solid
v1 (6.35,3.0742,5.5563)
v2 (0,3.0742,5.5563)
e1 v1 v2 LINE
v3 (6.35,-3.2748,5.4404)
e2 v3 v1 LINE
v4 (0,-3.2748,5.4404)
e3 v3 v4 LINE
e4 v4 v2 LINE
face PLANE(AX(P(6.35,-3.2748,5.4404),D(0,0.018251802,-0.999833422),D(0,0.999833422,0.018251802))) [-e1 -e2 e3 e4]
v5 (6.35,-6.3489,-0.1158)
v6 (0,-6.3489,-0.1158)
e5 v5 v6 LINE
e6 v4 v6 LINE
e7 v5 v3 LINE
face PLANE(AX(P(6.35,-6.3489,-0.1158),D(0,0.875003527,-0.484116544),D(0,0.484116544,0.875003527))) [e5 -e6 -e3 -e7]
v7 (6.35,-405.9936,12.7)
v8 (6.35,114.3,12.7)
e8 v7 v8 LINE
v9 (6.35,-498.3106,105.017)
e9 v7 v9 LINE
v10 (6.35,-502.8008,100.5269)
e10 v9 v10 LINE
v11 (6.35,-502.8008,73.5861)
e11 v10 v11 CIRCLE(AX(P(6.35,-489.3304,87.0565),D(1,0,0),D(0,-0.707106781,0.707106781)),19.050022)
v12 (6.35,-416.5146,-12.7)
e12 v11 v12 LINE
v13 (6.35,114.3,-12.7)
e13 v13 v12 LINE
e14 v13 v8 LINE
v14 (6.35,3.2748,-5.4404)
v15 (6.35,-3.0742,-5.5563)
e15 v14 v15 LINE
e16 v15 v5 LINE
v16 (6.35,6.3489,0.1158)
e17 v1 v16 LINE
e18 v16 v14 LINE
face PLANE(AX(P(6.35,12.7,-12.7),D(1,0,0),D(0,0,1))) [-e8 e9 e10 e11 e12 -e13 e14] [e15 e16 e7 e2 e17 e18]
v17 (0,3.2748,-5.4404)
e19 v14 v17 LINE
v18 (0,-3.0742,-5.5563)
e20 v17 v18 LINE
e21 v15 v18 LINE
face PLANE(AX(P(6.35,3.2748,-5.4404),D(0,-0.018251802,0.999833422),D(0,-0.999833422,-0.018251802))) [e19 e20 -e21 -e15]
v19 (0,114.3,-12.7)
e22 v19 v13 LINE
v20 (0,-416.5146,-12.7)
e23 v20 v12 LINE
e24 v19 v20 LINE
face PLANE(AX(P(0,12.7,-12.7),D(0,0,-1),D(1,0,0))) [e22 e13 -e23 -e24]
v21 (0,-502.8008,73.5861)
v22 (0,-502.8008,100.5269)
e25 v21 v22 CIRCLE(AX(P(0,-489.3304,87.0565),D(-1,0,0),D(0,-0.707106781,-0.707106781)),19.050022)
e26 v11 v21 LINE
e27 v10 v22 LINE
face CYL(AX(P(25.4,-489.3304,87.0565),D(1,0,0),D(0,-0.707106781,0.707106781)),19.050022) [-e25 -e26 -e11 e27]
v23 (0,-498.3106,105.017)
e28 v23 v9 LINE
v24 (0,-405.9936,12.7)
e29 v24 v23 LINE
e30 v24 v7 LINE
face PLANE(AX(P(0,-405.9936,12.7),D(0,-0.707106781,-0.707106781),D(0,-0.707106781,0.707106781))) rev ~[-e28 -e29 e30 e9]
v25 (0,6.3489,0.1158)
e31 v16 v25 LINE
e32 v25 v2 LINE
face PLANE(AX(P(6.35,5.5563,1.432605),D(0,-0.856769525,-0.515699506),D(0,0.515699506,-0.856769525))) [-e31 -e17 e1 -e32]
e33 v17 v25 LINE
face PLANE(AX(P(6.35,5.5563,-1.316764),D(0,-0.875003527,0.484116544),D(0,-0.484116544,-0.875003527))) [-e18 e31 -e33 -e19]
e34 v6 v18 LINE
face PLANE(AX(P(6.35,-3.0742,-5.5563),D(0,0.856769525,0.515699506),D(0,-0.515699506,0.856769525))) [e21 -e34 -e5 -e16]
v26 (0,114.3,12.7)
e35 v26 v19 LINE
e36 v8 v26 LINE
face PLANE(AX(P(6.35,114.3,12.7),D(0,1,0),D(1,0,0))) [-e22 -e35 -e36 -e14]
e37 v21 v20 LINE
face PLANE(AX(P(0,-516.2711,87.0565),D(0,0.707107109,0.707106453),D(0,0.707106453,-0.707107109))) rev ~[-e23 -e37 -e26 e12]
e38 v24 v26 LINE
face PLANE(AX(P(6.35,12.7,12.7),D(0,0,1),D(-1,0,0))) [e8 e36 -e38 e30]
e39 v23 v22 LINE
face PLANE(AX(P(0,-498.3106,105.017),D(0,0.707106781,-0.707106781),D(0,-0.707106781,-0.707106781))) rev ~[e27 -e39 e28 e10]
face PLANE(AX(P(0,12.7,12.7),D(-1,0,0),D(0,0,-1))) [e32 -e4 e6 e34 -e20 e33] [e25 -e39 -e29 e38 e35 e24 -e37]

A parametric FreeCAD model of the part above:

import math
import FreeCAD as App
import Part
import Sketcher

V = App.Vector
Q = App.Units.Quantity


def add_polygon(sketch, points):
    """Adds a closed chain of lines whose ends are joined by coincident constraints."""
    first, n = sketch.GeometryCount, len(points)
    for a, b in zip(points, points[1:] + points[:1]):
        sketch.addGeometry(Part.LineSegment(App.Vector(*a, 0), App.Vector(*b, 0)), False)
    for i in range(n):
        sketch.addConstraint(Sketcher.Constraint("Coincident", first + i, 2, first + (i + 1) % n, 1))

doc = App.newDocument("Part")
params = doc.addObject("Spreadsheet::Sheet", "Params")
for row, (alias, value) in enumerate([
    ("sketch1_diameter", "0.25 in"),
    ("sketch1_length", "1 in"),
    ("sketch1_height", "0.5 in"),
    ("sketch1_length2", "5.14 in"),
    ("sketch1_width", "16.484 in"),
    ("pad1_length", "1 in"),
    ("sketch2_radius", "0.75 in"),
    ("pocket1_length", "1 in"),
    ("sketch3_width", "1 in"),
    ("pad2_length", "5 in"),
    ("sketch4_diameter", "0.25 in"),
    ("sketch4_height", "1 in"),
    ("sketch4_radius", "0.75 in"),
    ("sketch4_length", "0.25 in"),
    ("sketch4_length2", "5.14 in"),
    ("pocket2_length", "0.75 in"),
    ("sketch5_width", "5 in"),
    ("sketch5_height", "1 in"),
    ("pocket3_length", "5 in"),
    ("sketch6_height", "1 in"),
    ("sketch6_width", "0.25 in"),
    ("pad3_length", "4 in"),
    ("sketch7_diameter", "0.5 in"),
    ("sketch7_diameter2", "0.25 in"),
    ("pocket4_length", "1 in"),
    ("sketch8_radius", "0.25 in"),
    ("pad4_length", "0.25 in"),
], start=1):
    params.set(f"A{row}", alias)
    params.set(f"B{row}", "=" + value)
    params.setAlias(f"B{row}", alias)

body = doc.addObject("PartDesign::Body", "Body")

# Sketch on YZ plane
sketch1 = body.newObject("Sketcher::SketchObject", "Sketch")
sketch1.AttachmentSupport = (doc.getObject("YZ_Plane"), [""])
sketch1.MapMode = "FlatFace"
add_polygon(sketch1, [(12.7, -12.7), (12.7, 0), (12.7, 12.7), (-406, 12.7), (-498.3, 105), (-516.3, 87.1), (-416.5, -12.7)])  # lines 0-6
sketch1.addGeometry(Part.Circle(V(0, 0, 0), V(0, 0, 1), 3.2), False)  # 7
sketch1.addConstraint(Sketcher.Constraint("Vertical", 0))
sketch1.addConstraint(Sketcher.Constraint("Vertical", 1))
sketch1.addConstraint(Sketcher.Constraint("Horizontal", 2))
sketch1.addConstraint(Sketcher.Constraint("Horizontal", 6))
sketch1.addConstraint(Sketcher.Constraint("Coincident", 7, 3, -1, 1))
sketch1.addConstraint(Sketcher.Constraint("PointOnObject", 0, 2, -1))
sketch1.addConstraint(Sketcher.Constraint("Perpendicular", 3, 4))
sketch1.addConstraint(Sketcher.Constraint("Perpendicular", 4, 5))
sketch1.addConstraint(Sketcher.Constraint("Equal", 0, 1))
sketch1.addConstraint(Sketcher.Constraint("Diameter", 7, Q("0.25 in")))
sketch1.addConstraint(Sketcher.Constraint("Distance", 4, Q("1 in")))
sketch1.addConstraint(Sketcher.Constraint("DistanceY", 0, 1, 0, 2, Q("0.5 in")))
sketch1.addConstraint(Sketcher.Constraint("Angle", 3, Q("135 deg")))
sketch1.addConstraint(Sketcher.Constraint("DistanceX", -1, 1, 0, 2, Q("0.5 in")))
sketch1.addConstraint(Sketcher.Constraint("Distance", 3, Q("5.14 in")))
sketch1.addConstraint(Sketcher.Constraint("DistanceX", 2, 2, 2, 1, Q("16.484 in")))
sketch1.setExpression("Constraints[16]", "Params.sketch1_diameter")
sketch1.setExpression("Constraints[17]", "Params.sketch1_length")
sketch1.setExpression("Constraints[18]", "Params.sketch1_height")
sketch1.setExpression("Constraints[21]", "Params.sketch1_length2")
sketch1.setExpression("Constraints[22]", "Params.sketch1_width")
pad1 = body.newObject("PartDesign::Pad", "Pad")
pad1.Profile = sketch1
pad1.setExpression("Length", "Params.pad1_length")

# Sketch on YZ plane
sketch2 = body.newObject("Sketcher::SketchObject", "Sketch001")
sketch2.AttachmentSupport = (doc.getObject("YZ_Plane"), [""])
sketch2.MapMode = "FlatFace"
sketch2.AttachmentOffset = App.Placement(V(0, 0, 1 * 25.4), App.Rotation())
sketch2.addGeometry(Part.LineSegment(V(-503, 101, 0), V(-516, 87, 0)), False)
sketch2.addGeometry(Part.LineSegment(V(-516, 87, 0), V(-503, 74, 0)), False)
sketch2.addGeometry(Part.ArcOfCircle(Part.Circle(V(-489, 87, 0), V(0, 0, 1), 19), math.radians(135), math.radians(225)), False)
sketch2.addConstraint(Sketcher.Constraint("Coincident", 0, 2, 1, 1))
sketch2.addConstraint(Sketcher.Constraint("Tangent", 1, 2, 2, 2))
sketch2.addConstraint(Sketcher.Constraint("Tangent", 2, 1, 0, 1))
sketch2.addConstraint(Sketcher.Constraint("Perpendicular", 0, 1))
sketch2.addConstraint(Sketcher.Constraint("Horizontal", 2, 3, 0, 2))
sketch2.addConstraint(Sketcher.Constraint("Radius", 2, Q("0.75 in")))
sketch2.addConstraint(Sketcher.Constraint("DistanceX", 1, 2, -1, 1, Q("19.7953 in")))
sketch2.addConstraint(Sketcher.Constraint("DistanceY", -1, 1, 1, 2, Q("2.8971 in")))
sketch2.setExpression("Constraints[5]", "Params.sketch2_radius")
pocket1 = body.newObject("PartDesign::Pocket", "Pocket")
pocket1.Profile = sketch2
pocket1.setExpression("Length", "Params.pocket1_length")

# Sketch on XZ plane
sketch3 = body.newObject("Sketcher::SketchObject", "Sketch002")
sketch3.AttachmentSupport = (doc.getObject("XZ_Plane"), [""])
sketch3.MapMode = "FlatFace"
sketch3.AttachmentOffset = App.Placement(V(0, 0, -0.5 * 25.4), App.Rotation())
add_polygon(sketch3, [(25, -13), (0, -13), (0, 13), (25, 13)])  # lines 0-3
sketch3.addConstraint(Sketcher.Constraint("Horizontal", 0))
sketch3.addConstraint(Sketcher.Constraint("Vertical", 1))
sketch3.addConstraint(Sketcher.Constraint("Horizontal", 2))
sketch3.addConstraint(Sketcher.Constraint("Vertical", 3))
sketch3.addConstraint(Sketcher.Constraint("Symmetric", 0, 2, 1, 2, -1, 1))
sketch3.addConstraint(Sketcher.Constraint("Equal", 2, 1))
sketch3.addConstraint(Sketcher.Constraint("DistanceX", 0, 2, 0, 1, Q("1 in")))
sketch3.setExpression("Constraints[10]", "Params.sketch3_width")
pad2 = body.newObject("PartDesign::Pad", "Pad001")
pad2.Profile = sketch3
pad2.setExpression("Length", "Params.pad2_length")
pad2.Reversed = True

# Sketch on YZ plane
sketch4 = body.newObject("Sketcher::SketchObject", "Sketch003")
sketch4.AttachmentSupport = (doc.getObject("YZ_Plane"), [""])
sketch4.MapMode = "FlatFace"
sketch4.AttachmentOffset = App.Placement(V(0, 0, 1 * 25.4), App.Rotation())
sketch4.addGeometry(Part.LineSegment(V(-498.3, 105, 0), V(-502.8, 100.5, 0)), False)
sketch4.addGeometry(Part.ArcOfCircle(Part.Circle(V(-489.3, 87.1, 0), V(0, 0, 1), 19.1), math.radians(135), math.radians(225)), False)
sketch4.addGeometry(Part.LineSegment(V(-502.8, 73.6, 0), V(-416.5, -12.7, 0)), False)
sketch4.addGeometry(Part.LineSegment(V(-416.5, -12.7, 0), V(139.7, -12.7, 0)), False)
sketch4.addGeometry(Part.LineSegment(V(139.7, -12.7, 0), V(139.7, 12.7, 0)), False)
sketch4.addGeometry(Part.LineSegment(V(139.7, 12.7, 0), V(-406, 12.7, 0)), False)
sketch4.addGeometry(Part.LineSegment(V(-406, 12.7, 0), V(-498.3, 105, 0)), False)
sketch4.addGeometry(Part.Circle(V(0, 0, 0), V(0, 0, 1), 3.2), False)
sketch4.addConstraint(Sketcher.Constraint("Tangent", 0, 2, 1, 1))
sketch4.addConstraint(Sketcher.Constraint("Tangent", 1, 2, 2, 1))
sketch4.addConstraint(Sketcher.Constraint("Coincident", 2, 2, 3, 1))
sketch4.addConstraint(Sketcher.Constraint("Coincident", 3, 2, 4, 1))
sketch4.addConstraint(Sketcher.Constraint("Coincident", 4, 2, 5, 1))
sketch4.addConstraint(Sketcher.Constraint("Coincident", 5, 2, 6, 1))
sketch4.addConstraint(Sketcher.Constraint("Coincident", 6, 2, 0, 1))
sketch4.addConstraint(Sketcher.Constraint("Horizontal", 3))
sketch4.addConstraint(Sketcher.Constraint("Vertical", 4))
sketch4.addConstraint(Sketcher.Constraint("Horizontal", 5))
sketch4.addConstraint(Sketcher.Constraint("Coincident", 7, 3, -1, 1))
sketch4.addConstraint(Sketcher.Constraint("Perpendicular", 0, 2))
sketch4.addConstraint(Sketcher.Constraint("Parallel", 2, 6))
sketch4.addConstraint(Sketcher.Constraint("Vertical", 0, 2, 1, 2))
sketch4.addConstraint(Sketcher.Constraint("Diameter", 7, Q("0.25 in")))
sketch4.addConstraint(Sketcher.Constraint("DistanceY", 4, 1, 4, 2, Q("1 in")))
sketch4.addConstraint(Sketcher.Constraint("Radius", 1, Q("0.75 in")))
sketch4.addConstraint(Sketcher.Constraint("DistanceY", 2, 2, -1, 1, Q("0.5 in")))
sketch4.addConstraint(Sketcher.Constraint("DistanceX", -1, 1, 3, 2, Q("5.5 in")))
sketch4.addConstraint(Sketcher.Constraint("Distance", 0, Q("0.25 in")))
sketch4.addConstraint(Sketcher.Constraint("Distance", 6, Q("5.14 in")))
sketch4.addConstraint(Sketcher.Constraint("DistanceX", 5, 2, 5, 1, Q("21.484 in")))
sketch4.setExpression("Constraints[14]", "Params.sketch4_diameter")
sketch4.setExpression("Constraints[15]", "Params.sketch4_height")
sketch4.setExpression("Constraints[16]", "Params.sketch4_radius")
sketch4.setExpression("Constraints[19]", "Params.sketch4_length")
sketch4.setExpression("Constraints[20]", "Params.sketch4_length2")
pocket2 = body.newObject("PartDesign::Pocket", "Pocket001")
pocket2.Profile = sketch4
pocket2.setExpression("Length", "Params.pocket2_length")

# Sketch on YZ plane
sketch5 = body.newObject("Sketcher::SketchObject", "Sketch004")
sketch5.AttachmentSupport = (doc.getObject("YZ_Plane"), [""])
sketch5.MapMode = "FlatFace"
sketch5.AttachmentOffset = App.Placement(V(0, 0, 0.25 * 25.4), App.Rotation())
add_polygon(sketch5, [(140, -13), (140, 13), (13, 13), (13, -13)])  # lines 0-3
sketch5.addConstraint(Sketcher.Constraint("Vertical", 0))
sketch5.addConstraint(Sketcher.Constraint("Horizontal", 1))
sketch5.addConstraint(Sketcher.Constraint("Vertical", 2))
sketch5.addConstraint(Sketcher.Constraint("Horizontal", 3))
sketch5.addConstraint(Sketcher.Constraint("DistanceX", 1, 2, 1, 1, Q("5 in")))
sketch5.addConstraint(Sketcher.Constraint("DistanceY", 0, 1, 0, 2, Q("1 in")))
sketch5.addConstraint(Sketcher.Constraint("DistanceX", -1, 1, 0, 2, Q("5.5 in")))
sketch5.addConstraint(Sketcher.Constraint("DistanceY", -1, 1, 0, 2, Q("0.5 in")))
sketch5.setExpression("Constraints[8]", "Params.sketch5_width")
sketch5.setExpression("Constraints[9]", "Params.sketch5_height")
pocket3 = body.newObject("PartDesign::Pocket", "Pocket002")
pocket3.Profile = sketch5
pocket3.setExpression("Length", "Params.pocket3_length")

# Sketch on XZ plane
sketch6 = body.newObject("Sketcher::SketchObject", "Sketch005")
sketch6.AttachmentSupport = (doc.getObject("XZ_Plane"), [""])
sketch6.MapMode = "FlatFace"
sketch6.AttachmentOffset = App.Placement(V(0, 0, -0.5 * 25.4), App.Rotation())
add_polygon(sketch6, [(0, -13), (0, 13), (6, 13), (6, -13)])  # lines 0-3
sketch6.addConstraint(Sketcher.Constraint("Vertical", 0))
sketch6.addConstraint(Sketcher.Constraint("Horizontal", 1))
sketch6.addConstraint(Sketcher.Constraint("Vertical", 2))
sketch6.addConstraint(Sketcher.Constraint("Horizontal", 3))
sketch6.addConstraint(Sketcher.Constraint("Symmetric", 0, 2, 3, 2, -1, 1))
sketch6.addConstraint(Sketcher.Constraint("DistanceY", 0, 1, 0, 2, Q("1 in")))
sketch6.addConstraint(Sketcher.Constraint("DistanceX", 1, 1, 1, 2, Q("0.25 in")))
sketch6.setExpression("Constraints[9]", "Params.sketch6_height")
sketch6.setExpression("Constraints[10]", "Params.sketch6_width")
pad3 = body.newObject("PartDesign::Pad", "Pad002")
pad3.Profile = sketch6
pad3.setExpression("Length", "Params.pad3_length")
pad3.Reversed = True

# Sketch on YZ plane
sketch7 = body.newObject("Sketcher::SketchObject", "Sketch006")
sketch7.AttachmentSupport = (doc.getObject("YZ_Plane"), [""])
sketch7.MapMode = "FlatFace"
sketch7.AttachmentOffset = App.Placement(V(0, 0, 0.25 * 25.4), App.Rotation())
sketch7.addGeometry(Part.Circle(V(0, 0, 0), V(0, 0, 1), 6.3), False)
sketch7.addGeometry(Part.Circle(V(0, 0, 0), V(0, 0, 1), 3.2), False)
sketch7.addConstraint(Sketcher.Constraint("Coincident", 0, 3, -1, 1))
sketch7.addConstraint(Sketcher.Constraint("Coincident", 1, 3, -1, 1))
sketch7.addConstraint(Sketcher.Constraint("Diameter", 0, Q("0.5 in")))
sketch7.addConstraint(Sketcher.Constraint("Diameter", 1, Q("0.25 in")))
sketch7.setExpression("Constraints[2]", "Params.sketch7_diameter")
sketch7.setExpression("Constraints[3]", "Params.sketch7_diameter2")
pocket4 = body.newObject("PartDesign::Pocket", "Pocket003")
pocket4.Profile = sketch7
pocket4.setExpression("Length", "Params.pocket4_length")

# Sketch on YZ plane
sketch8 = body.newObject("Sketcher::SketchObject", "Sketch007")
sketch8.AttachmentSupport = (doc.getObject("YZ_Plane"), [""])
sketch8.MapMode = "FlatFace"
sketch8.AttachmentOffset = App.Placement(V(0, 0, 0.25 * 25.4), App.Rotation())
sketch8.addGeometry(Part.LineSegment(V(3, -5, 0), V(-3, -6, 0)), False)
sketch8.addGeometry(Part.ArcOfCircle(Part.Circle(V(0, 0, 0), V(0, 0, 1), 6), math.radians(-119), math.radians(-59)), False)
sketch8.addGeometry(Part.LineSegment(V(-3, -6, 0), V(-6, 0, 0)), False)
sketch8.addGeometry(Part.ArcOfCircle(Part.Circle(V(0, 0, 0), V(0, 0, 1), 6), math.radians(-179), math.radians(-119)), False)
sketch8.addGeometry(Part.ArcOfCircle(Part.Circle(V(0, 0, 0), V(0, 0, 1), 6), math.radians(-59), math.radians(1)), False)
sketch8.addGeometry(Part.LineSegment(V(3, -5, 0), V(6, 0, 0)), False)
sketch8.addGeometry(Part.LineSegment(V(-6, 0, 0), V(-3, 5, 0)), False)
sketch8.addGeometry(Part.ArcOfCircle(Part.Circle(V(0, 0, 0), V(0, 0, 1), 6), math.radians(121), math.radians(181)), False)
sketch8.addGeometry(Part.LineSegment(V(-3, 5, 0), V(3, 6, 0)), False)
sketch8.addGeometry(Part.ArcOfCircle(Part.Circle(V(0, 0, 0), V(0, 0, 1), 6), math.radians(61), math.radians(121)), False)
sketch8.addGeometry(Part.ArcOfCircle(Part.Circle(V(0, 0, 0), V(0, 0, 1), 6), math.radians(1), math.radians(61)), False)
sketch8.addGeometry(Part.LineSegment(V(6, 0, 0), V(3, 6, 0)), False)
sketch8.addConstraint(Sketcher.Constraint("Coincident", 0, 1, 1, 2))
sketch8.addConstraint(Sketcher.Constraint("Coincident", 1, 1, 0, 2))
sketch8.addConstraint(Sketcher.Constraint("Coincident", 2, 1, 3, 2))
sketch8.addConstraint(Sketcher.Constraint("Coincident", 3, 1, 2, 2))
sketch8.addConstraint(Sketcher.Constraint("Coincident", 4, 1, 5, 1))
sketch8.addConstraint(Sketcher.Constraint("Coincident", 5, 2, 4, 2))
sketch8.addConstraint(Sketcher.Constraint("Coincident", 6, 1, 7, 2))
sketch8.addConstraint(Sketcher.Constraint("Coincident", 7, 1, 6, 2))
sketch8.addConstraint(Sketcher.Constraint("Coincident", 8, 1, 9, 2))
sketch8.addConstraint(Sketcher.Constraint("Coincident", 9, 1, 8, 2))
sketch8.addConstraint(Sketcher.Constraint("Coincident", 10, 1, 11, 1))
sketch8.addConstraint(Sketcher.Constraint("Coincident", 11, 2, 10, 2))
sketch8.addConstraint(Sketcher.Constraint("Coincident", 1, 3, -1, 1))
sketch8.addConstraint(Sketcher.Constraint("Coincident", 3, 3, -1, 1))
sketch8.addConstraint(Sketcher.Constraint("Coincident", 4, 3, -1, 1))
sketch8.addConstraint(Sketcher.Constraint("Coincident", 7, 3, -1, 1))
sketch8.addConstraint(Sketcher.Constraint("Coincident", 9, 3, -1, 1))
sketch8.addConstraint(Sketcher.Constraint("Coincident", 10, 3, -1, 1))
sketch8.addConstraint(Sketcher.Constraint("Coincident", 2, 1, 1, 1))
sketch8.addConstraint(Sketcher.Constraint("Coincident", 4, 1, 0, 1))
sketch8.addConstraint(Sketcher.Constraint("Coincident", 6, 1, 3, 1))
sketch8.addConstraint(Sketcher.Constraint("Coincident", 8, 1, 7, 1))
sketch8.addConstraint(Sketcher.Constraint("Coincident", 10, 1, 5, 2))
sketch8.addConstraint(Sketcher.Constraint("Parallel", 5, 6))
sketch8.addConstraint(Sketcher.Constraint("Parallel", 0, 8))
sketch8.addConstraint(Sketcher.Constraint("Parallel", 2, 11))
sketch8.addConstraint(Sketcher.Constraint("Equal", 0, 2))
sketch8.addConstraint(Sketcher.Constraint("Equal", 2, 5))
sketch8.addConstraint(Sketcher.Constraint("Equal", 5, 6))
sketch8.addConstraint(Sketcher.Constraint("Radius", 1, Q("0.25 in")))
sketch8.addConstraint(Sketcher.Constraint("DistanceY", 1, 1, -1, 1, Q("0.218752 in")))
sketch8.setExpression("Constraints[29]", "Params.sketch8_radius")
pad4 = body.newObject("PartDesign::Pad", "Pad003")
pad4.Profile = sketch8
pad4.setExpression("Length", "Params.pad4_length")
pad4.Reversed = True

doc.recompute()
